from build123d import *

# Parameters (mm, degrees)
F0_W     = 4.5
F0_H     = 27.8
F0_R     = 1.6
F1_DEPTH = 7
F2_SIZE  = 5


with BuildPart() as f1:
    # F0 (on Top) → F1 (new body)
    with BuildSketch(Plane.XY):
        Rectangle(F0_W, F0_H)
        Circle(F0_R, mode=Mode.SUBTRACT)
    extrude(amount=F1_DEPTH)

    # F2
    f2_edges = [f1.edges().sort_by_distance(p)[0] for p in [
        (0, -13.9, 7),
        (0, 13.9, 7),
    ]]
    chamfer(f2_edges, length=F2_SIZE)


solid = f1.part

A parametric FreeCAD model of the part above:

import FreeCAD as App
import Part
import Sketcher

V = App.Vector
Q = App.Units.Quantity


def edges_at(feature, points):
    """Names of the edges that pass closest to the given points."""
    edges = feature.Shape.Edges
    near = lambda p: min(range(len(edges)), key=lambda i: edges[i].distToShape(Part.Vertex(*p))[0])
    return sorted({f"Edge{near(p) + 1}" for p in points})


def add_polygon(sketch, points):
    """Adds a closed chain of lines whose ends are joined by coincident constraints."""
    first, n = sketch.GeometryCount, len(points)
    for a, b in zip(points, points[1:] + points[:1]):
        sketch.addGeometry(Part.LineSegment(App.Vector(*a, 0), App.Vector(*b, 0)), False)
    for i in range(n):
        sketch.addConstraint(Sketcher.Constraint("Coincident", first + i, 2, first + (i + 1) % n, 1))

doc = App.newDocument("Part")
body = doc.addObject("PartDesign::Body", "Body")

# Sketch on XY plane
sketch1 = doc.addObject("Sketcher::SketchObject", "Sketch")
body.addObject(sketch1)
sketch1.AttachmentSupport = (doc.XY_Plane, [""])
sketch1.MapMode = "FlatFace"
add_polygon(sketch1, [(-2.2, 13.9), (-2.2, -13.9), (2.2, -13.9), (2.2, 13.9)])  # lines 0-3
sketch1.addGeometry(Part.Circle(V(0, 0, 0), V(0, 0, 1), 1.6), False)  # 4
sketch1.addConstraint([
    Sketcher.Constraint("Vertical", 0),
    Sketcher.Constraint("Horizontal", 1),
    Sketcher.Constraint("Vertical", 2),
    Sketcher.Constraint("Horizontal", 3),
    Sketcher.Constraint("Coincident", 4, 3, -1, 1),
    Sketcher.Constraint("Symmetric", 0, 2, 2, 2, -1, 1),
    Sketcher.Constraint("Diameter", 4, Q("3.2 mm")),
    Sketcher.Constraint("DistanceX", 1, 1, 1, 2, Q("4.5 mm")),
    Sketcher.Constraint("DistanceY", 0, 2, 0, 1, Q("27.8 mm")),
])
pad1 = doc.addObject("PartDesign::Pad", "Pad")
body.addObject(pad1)
pad1.Profile = sketch1
pad1.Length = 7
doc.recompute()

chamfer = doc.addObject("PartDesign::Chamfer", "Chamfer")
body.addObject(chamfer)
chamfer.Base = (pad1, edges_at(pad1, [(0, -13.9, 7), (0, 13.9, 7)]))
chamfer.Size = 5

doc.recompute()
